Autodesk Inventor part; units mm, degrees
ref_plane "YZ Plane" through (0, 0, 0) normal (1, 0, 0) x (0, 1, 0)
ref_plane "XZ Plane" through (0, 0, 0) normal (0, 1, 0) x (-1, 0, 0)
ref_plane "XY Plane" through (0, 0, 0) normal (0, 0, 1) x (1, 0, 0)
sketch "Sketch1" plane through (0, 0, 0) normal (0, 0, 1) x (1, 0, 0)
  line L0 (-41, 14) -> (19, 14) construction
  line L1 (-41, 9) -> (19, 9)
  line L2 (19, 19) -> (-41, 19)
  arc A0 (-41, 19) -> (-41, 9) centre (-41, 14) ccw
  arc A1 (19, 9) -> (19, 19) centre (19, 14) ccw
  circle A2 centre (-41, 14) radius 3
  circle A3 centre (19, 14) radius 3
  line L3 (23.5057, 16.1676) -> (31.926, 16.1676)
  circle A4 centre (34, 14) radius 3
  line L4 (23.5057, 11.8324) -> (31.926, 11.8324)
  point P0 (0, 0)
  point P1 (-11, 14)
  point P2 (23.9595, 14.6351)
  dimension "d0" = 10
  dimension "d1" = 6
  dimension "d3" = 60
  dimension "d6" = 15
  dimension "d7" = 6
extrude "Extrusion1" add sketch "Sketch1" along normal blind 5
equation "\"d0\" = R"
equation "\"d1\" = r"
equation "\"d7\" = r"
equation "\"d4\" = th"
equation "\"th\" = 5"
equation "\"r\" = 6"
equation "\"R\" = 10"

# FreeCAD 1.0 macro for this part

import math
import FreeCAD as App
import Part
import Sketcher

V = App.Vector

doc = App.newDocument("Part")
body = doc.addObject("PartDesign::Body", "Body")

sketch1 = body.newObject("Sketcher::SketchObject", "Sketch")
sketch1.AttachmentSupport = (doc.getObject("XY_Plane"), [""])
sketch1.MapMode = "FlatFace"
sketch1.addGeometry(Part.ArcOfCircle(Part.Circle(V(-41, 14, 0), V(0, 0, 1), 5), math.radians(90), math.radians(270)), False)
sketch1.addGeometry(Part.LineSegment(V(-41, 9, 0), V(19, 9, 0)), False)
sketch1.addGeometry(Part.ArcOfCircle(Part.Circle(V(19, 14, 0), V(0, 0, 1), 5), math.radians(-90), math.radians(-25.691255)), False)
sketch1.addGeometry(Part.LineSegment(V(23.5057, 11.8324, 0), V(31.926, 11.8324, 0)), False)
sketch1.addGeometry(Part.ArcOfCircle(Part.Circle(V(34, 14, 0), V(0, 0, 1), 3), math.radians(-133.735851), math.radians(133.735851)), False)
sketch1.addGeometry(Part.LineSegment(V(31.926, 16.1676, 0), V(23.5057, 16.1676, 0)), False)
sketch1.addGeometry(Part.ArcOfCircle(Part.Circle(V(19, 14, 0), V(0, 0, 1), 5), math.radians(25.691255), math.radians(90)), False)
sketch1.addGeometry(Part.LineSegment(V(19, 19, 0), V(-41, 19, 0)), False)
sketch1.addGeometry(Part.Circle(V(-41, 14, 0), V(0, 0, 1), 3), False)
sketch1.addGeometry(Part.Circle(V(19, 14, 0), V(0, 0, 1), 3), False)
sketch1.addConstraint(Sketcher.Constraint("Tangent", 0, 2, 1, 1))
sketch1.addConstraint(Sketcher.Constraint("Tangent", 1, 2, 2, 1))
sketch1.addConstraint(Sketcher.Constraint("Coincident", 2, 2, 3, 1))
sketch1.addConstraint(Sketcher.Constraint("Coincident", 3, 2, 4, 1))
sketch1.addConstraint(Sketcher.Constraint("Coincident", 4, 2, 5, 1))
sketch1.addConstraint(Sketcher.Constraint("Coincident", 5, 2, 6, 1))
sketch1.addConstraint(Sketcher.Constraint("Tangent", 6, 2, 7, 1))
sketch1.addConstraint(Sketcher.Constraint("Tangent", 7, 2, 0, 1))
sketch1.addConstraint(Sketcher.Constraint("Horizontal", 1))
sketch1.addConstraint(Sketcher.Constraint("Horizontal", 3))
sketch1.addConstraint(Sketcher.Constraint("Horizontal", 5))
sketch1.addConstraint(Sketcher.Constraint("Horizontal", 7))
sketch1.addConstraint(Sketcher.Constraint("Coincident", 6, 3, 2, 3))
sketch1.addConstraint(Sketcher.Constraint("Coincident", 8, 3, 0, 3))
sketch1.addConstraint(Sketcher.Constraint("Coincident", 9, 3, 2, 3))
sketch1.addConstraint(Sketcher.Constraint("Equal", 0, 2))
sketch1.addConstraint(Sketcher.Constraint("Equal", 4, 8))
sketch1.addConstraint(Sketcher.Constraint("Equal", 8, 9))
sketch1.addConstraint(Sketcher.Constraint("Horizontal", 2, 3, 4, 3))
sketch1.addConstraint(Sketcher.Constraint("Vertical", 3, 2, 4, 2))
sketch1.addConstraint(Sketcher.Constraint("Diameter", 8, 6.0))
sketch1.addConstraint(Sketcher.Constraint("Radius", 0, 5.0))
sketch1.addConstraint(Sketcher.Constraint("DistanceX", 1, 1, 1, 2, 60.0))
sketch1.addConstraint(Sketcher.Constraint("DistanceX", 2, 3, 4, 3, 15.0))
sketch1.addConstraint(Sketcher.Constraint("DistanceX", 0, 3, -1, 1, 41.0))
sketch1.addConstraint(Sketcher.Constraint("DistanceY", -1, 1, 0, 3, 14.0))
sketch1.addConstraint(Sketcher.Constraint("DistanceX", 3, 1, 3, 2, 8.4203))
pad1 = body.newObject("PartDesign::Pad", "Pad")
pad1.Profile = sketch1
pad1.Length = 5

doc.recompute()
